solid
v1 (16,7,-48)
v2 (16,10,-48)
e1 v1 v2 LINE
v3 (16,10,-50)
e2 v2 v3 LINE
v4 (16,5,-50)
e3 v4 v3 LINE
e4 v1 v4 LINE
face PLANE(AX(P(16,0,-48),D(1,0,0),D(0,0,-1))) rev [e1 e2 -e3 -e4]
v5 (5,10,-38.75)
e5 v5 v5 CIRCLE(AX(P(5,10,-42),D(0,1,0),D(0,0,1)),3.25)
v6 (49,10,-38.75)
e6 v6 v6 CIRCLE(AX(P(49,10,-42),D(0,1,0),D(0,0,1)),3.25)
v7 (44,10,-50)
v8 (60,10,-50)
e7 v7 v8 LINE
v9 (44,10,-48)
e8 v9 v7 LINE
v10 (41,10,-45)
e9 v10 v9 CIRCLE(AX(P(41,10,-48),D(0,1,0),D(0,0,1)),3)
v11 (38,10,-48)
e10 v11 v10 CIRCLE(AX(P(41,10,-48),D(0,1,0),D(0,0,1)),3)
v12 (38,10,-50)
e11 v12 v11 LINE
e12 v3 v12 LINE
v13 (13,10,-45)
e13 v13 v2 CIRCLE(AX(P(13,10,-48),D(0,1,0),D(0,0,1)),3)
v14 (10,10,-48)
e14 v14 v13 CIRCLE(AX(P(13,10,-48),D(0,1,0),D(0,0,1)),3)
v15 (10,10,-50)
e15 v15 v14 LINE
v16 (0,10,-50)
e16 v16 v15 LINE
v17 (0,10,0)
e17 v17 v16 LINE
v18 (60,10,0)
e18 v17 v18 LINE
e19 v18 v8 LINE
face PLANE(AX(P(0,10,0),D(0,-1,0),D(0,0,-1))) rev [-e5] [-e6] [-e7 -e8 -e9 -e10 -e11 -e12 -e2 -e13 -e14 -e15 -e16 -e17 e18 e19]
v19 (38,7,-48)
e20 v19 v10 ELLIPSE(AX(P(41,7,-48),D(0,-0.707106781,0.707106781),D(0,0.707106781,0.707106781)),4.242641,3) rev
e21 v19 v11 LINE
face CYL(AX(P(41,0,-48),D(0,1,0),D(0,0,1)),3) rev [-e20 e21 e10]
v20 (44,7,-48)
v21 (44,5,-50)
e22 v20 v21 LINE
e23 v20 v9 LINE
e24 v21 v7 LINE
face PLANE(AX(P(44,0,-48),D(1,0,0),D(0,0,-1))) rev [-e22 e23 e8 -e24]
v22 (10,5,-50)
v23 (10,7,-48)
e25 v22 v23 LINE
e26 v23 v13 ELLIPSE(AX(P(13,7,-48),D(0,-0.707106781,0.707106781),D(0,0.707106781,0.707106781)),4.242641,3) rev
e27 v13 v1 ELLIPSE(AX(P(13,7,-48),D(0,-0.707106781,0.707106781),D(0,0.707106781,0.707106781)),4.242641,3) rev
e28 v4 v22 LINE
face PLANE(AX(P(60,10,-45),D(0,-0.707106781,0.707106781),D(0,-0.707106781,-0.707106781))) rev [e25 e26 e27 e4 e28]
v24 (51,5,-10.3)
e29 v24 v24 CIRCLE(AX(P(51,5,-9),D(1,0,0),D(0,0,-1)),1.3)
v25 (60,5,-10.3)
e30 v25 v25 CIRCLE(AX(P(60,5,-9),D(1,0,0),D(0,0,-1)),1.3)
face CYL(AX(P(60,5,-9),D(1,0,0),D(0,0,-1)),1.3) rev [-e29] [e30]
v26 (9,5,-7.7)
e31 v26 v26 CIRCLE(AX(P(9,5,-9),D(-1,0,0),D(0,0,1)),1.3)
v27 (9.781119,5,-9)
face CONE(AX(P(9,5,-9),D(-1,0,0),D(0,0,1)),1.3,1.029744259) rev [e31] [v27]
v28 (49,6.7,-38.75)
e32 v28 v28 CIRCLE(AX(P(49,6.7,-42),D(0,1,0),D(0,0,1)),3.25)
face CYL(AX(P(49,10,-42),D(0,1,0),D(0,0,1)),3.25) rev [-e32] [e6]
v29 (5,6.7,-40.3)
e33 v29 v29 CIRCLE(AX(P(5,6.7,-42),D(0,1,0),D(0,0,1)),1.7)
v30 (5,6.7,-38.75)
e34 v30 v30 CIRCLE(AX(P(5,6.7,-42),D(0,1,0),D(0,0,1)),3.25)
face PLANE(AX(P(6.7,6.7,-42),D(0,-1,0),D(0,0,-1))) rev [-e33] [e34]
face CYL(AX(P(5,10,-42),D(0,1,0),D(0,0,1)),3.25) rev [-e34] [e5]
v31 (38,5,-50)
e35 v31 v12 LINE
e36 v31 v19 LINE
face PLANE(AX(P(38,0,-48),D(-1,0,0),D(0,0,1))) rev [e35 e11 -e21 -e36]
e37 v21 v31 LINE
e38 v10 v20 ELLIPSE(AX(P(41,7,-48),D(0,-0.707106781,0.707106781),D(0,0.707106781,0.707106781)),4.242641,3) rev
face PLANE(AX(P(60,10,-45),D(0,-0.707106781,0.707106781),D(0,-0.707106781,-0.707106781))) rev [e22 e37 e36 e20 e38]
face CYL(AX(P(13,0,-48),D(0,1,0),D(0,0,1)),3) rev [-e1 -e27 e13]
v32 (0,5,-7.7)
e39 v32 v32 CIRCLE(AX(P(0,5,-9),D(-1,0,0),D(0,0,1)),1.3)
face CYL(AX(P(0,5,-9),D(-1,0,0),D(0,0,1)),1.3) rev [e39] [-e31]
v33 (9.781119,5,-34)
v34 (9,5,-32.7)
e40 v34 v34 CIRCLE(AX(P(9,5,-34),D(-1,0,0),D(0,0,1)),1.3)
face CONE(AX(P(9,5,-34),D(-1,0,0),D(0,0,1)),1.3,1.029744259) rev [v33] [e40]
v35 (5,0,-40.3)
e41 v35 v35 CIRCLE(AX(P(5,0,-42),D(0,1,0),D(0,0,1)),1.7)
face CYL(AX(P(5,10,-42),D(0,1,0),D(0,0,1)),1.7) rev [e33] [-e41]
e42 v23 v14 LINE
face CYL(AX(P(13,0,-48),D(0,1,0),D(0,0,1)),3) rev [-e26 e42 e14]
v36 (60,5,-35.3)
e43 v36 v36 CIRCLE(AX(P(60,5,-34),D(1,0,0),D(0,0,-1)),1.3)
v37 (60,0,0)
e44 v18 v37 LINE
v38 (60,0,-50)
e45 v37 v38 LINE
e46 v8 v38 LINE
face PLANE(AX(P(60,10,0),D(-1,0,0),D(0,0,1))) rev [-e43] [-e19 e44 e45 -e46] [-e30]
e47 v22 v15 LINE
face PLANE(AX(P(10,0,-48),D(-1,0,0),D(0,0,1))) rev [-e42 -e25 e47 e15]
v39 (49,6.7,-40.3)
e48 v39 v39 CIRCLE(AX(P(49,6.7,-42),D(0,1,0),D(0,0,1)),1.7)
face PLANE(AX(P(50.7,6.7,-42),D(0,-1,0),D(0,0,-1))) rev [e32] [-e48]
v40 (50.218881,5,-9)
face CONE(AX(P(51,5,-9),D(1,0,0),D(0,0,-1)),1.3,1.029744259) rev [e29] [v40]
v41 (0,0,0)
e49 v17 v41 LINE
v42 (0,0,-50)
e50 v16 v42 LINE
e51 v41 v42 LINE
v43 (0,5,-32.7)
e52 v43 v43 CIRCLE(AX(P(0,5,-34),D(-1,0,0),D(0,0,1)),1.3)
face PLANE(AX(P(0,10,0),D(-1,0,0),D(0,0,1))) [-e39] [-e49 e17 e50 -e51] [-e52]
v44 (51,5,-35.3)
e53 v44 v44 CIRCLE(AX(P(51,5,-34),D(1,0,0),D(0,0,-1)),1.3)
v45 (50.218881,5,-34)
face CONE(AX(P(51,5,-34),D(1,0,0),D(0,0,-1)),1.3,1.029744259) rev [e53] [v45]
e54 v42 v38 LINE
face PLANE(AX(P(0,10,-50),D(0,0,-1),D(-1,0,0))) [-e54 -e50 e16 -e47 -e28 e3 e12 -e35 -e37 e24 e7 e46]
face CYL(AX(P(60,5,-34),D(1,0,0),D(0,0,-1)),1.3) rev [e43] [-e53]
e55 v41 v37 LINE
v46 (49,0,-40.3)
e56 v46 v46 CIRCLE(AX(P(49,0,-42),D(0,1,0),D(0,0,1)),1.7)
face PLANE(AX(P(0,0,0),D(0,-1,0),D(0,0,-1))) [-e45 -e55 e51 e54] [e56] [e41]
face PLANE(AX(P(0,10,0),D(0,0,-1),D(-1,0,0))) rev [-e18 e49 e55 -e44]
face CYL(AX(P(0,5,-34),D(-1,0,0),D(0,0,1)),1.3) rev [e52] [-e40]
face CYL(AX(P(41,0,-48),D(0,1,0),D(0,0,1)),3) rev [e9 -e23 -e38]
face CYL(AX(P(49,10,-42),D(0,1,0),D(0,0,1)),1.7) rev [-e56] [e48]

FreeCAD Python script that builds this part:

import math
import FreeCAD as App
import Part
import Sketcher

V = App.Vector
Q = App.Units.Quantity

doc = App.newDocument("Part")
body = doc.addObject("PartDesign::Body", "Body")

# Sketch on XZ plane
sketch1 = body.newObject("Sketcher::SketchObject", "Sketch")
sketch1.AttachmentSupport = (doc.getObject("XZ_Plane"), [""])
sketch1.MapMode = "FlatFace"
sketch1.addGeometry([
    Part.LineSegment(V(0, -50, 0), V(0, 0, 0)),
    Part.LineSegment(V(0, 0, 0), V(60, 0, 0)),
    Part.LineSegment(V(60, 0, 0), V(60, -50, 0)),
    Part.LineSegment(V(60, -50, 0), V(0, -50, 0)),
], False)
sketch1.addConstraint([
    Sketcher.Constraint("Coincident", 0, 2, 1, 1),
    Sketcher.Constraint("Coincident", 1, 2, 2, 1),
    Sketcher.Constraint("Coincident", 2, 2, 3, 1),
    Sketcher.Constraint("Coincident", 3, 2, 0, 1),
    Sketcher.Constraint("Vertical", 0),
    Sketcher.Constraint("Horizontal", 1),
    Sketcher.Constraint("Vertical", 2),
    Sketcher.Constraint("Horizontal", 3),
    Sketcher.Constraint("Coincident", 0, 2, -1, 1),
    Sketcher.Constraint("DistanceX", 1, 1, 1, 2, Q("60 mm")),
    Sketcher.Constraint("DistanceY", 0, 1, 0, 2, Q("50 mm")),
])
pad1 = body.newObject("PartDesign::Pad", "Pad")
pad1.Profile = sketch1
pad1.Length = 10
pad1.Reversed = True

# Sketch on XZ plane
sketch2 = body.newObject("Sketcher::SketchObject", "Sketch001")
sketch2.AttachmentSupport = (doc.getObject("XZ_Plane"), [""])
sketch2.MapMode = "FlatFace"
sketch2.AttachmentOffset = App.Placement(V(0, 0, -10), App.Rotation())
sketch2.addGeometry([
    Part.LineSegment(V(38, -50, 0), V(38, -48, 0)),  # 0
    Part.ArcOfCircle(Part.Circle(V(41, -48, 0), V(0, 0, 1), 3), math.radians(0), math.radians(180)),  # 1
    Part.LineSegment(V(44, -48, 0), V(44, -50, 0)),  # 2
    Part.LineSegment(V(44, -50, 0), V(38, -50, 0)),  # 3
    Part.LineSegment(V(10, -50, 0), V(10, -48, 0)),  # 4
    Part.ArcOfCircle(Part.Circle(V(13, -48, 0), V(0, 0, 1), 3), math.radians(0), math.radians(180)),  # 5
    Part.LineSegment(V(16, -48, 0), V(16, -50, 0)),  # 6
    Part.LineSegment(V(16, -50, 0), V(10, -50, 0)),  # 7
], False)
sketch2.addConstraint([
    Sketcher.Constraint("Tangent", 0, 2, 1, 2),
    Sketcher.Constraint("Tangent", 1, 1, 2, 1),
    Sketcher.Constraint("Coincident", 2, 2, 3, 1),
    Sketcher.Constraint("Coincident", 3, 2, 0, 1),
    Sketcher.Constraint("Tangent", 4, 2, 5, 2),
    Sketcher.Constraint("Tangent", 5, 1, 6, 1),
    Sketcher.Constraint("Coincident", 6, 2, 7, 1),
    Sketcher.Constraint("Coincident", 7, 2, 4, 1),
    Sketcher.Constraint("Vertical", 0),
    Sketcher.Constraint("Vertical", 2),
    Sketcher.Constraint("Horizontal", 3),
    Sketcher.Constraint("Vertical", 4),
    Sketcher.Constraint("Vertical", 6),
    Sketcher.Constraint("Horizontal", 7),
    Sketcher.Constraint("Equal", 1, 5),
    Sketcher.Constraint("Horizontal", 1, 3, 5, 3),
    Sketcher.Constraint("Horizontal", 3, 2, 6, 2),
    Sketcher.Constraint("Radius", 1, Q("3 mm")),
    Sketcher.Constraint("DistanceY", 0, 1, 0, 2, Q("2 mm")),
    Sketcher.Constraint("DistanceX", -1, 1, 1, 3, Q("41 mm")),
    Sketcher.Constraint("DistanceY", 1, 3, -1, 1, Q("48 mm")),
    Sketcher.Constraint("DistanceX", -1, 1, 5, 3, Q("13 mm")),
])
pocket1 = body.newObject("PartDesign::Pocket", "Pocket")
pocket1.Profile = sketch2
pocket1.Length = 10
pocket1.Reversed = True

# Sketch on YZ plane
sketch3 = body.newObject("Sketcher::SketchObject", "Sketch002")
sketch3.AttachmentSupport = (doc.getObject("YZ_Plane"), [""])
sketch3.MapMode = "FlatFace"
sketch3.addGeometry([
    Part.LineSegment(V(0, -45, 0), V(0, -50, 0)),
    Part.LineSegment(V(0, -50, 0), V(5, -50, 0)),
    Part.LineSegment(V(5, -50, 0), V(10, -45, 0)),
    Part.LineSegment(V(10, -45, 0), V(0, -45, 0)),
], False)
sketch3.addConstraint([
    Sketcher.Constraint("Coincident", 0, 2, 1, 1),
    Sketcher.Constraint("Coincident", 1, 2, 2, 1),
    Sketcher.Constraint("Coincident", 2, 2, 3, 1),
    Sketcher.Constraint("Coincident", 3, 2, 0, 1),
    Sketcher.Constraint("Vertical", 0),
    Sketcher.Constraint("Horizontal", 1),
    Sketcher.Constraint("Horizontal", 3),
    Sketcher.Constraint("PointOnObject", 0, 2, -2),
    Sketcher.Constraint("Equal", 1, 0),
    Sketcher.Constraint("DistanceX", 1, 1, 1, 2, Q("5 mm")),
    Sketcher.Constraint("DistanceX", 3, 2, 3, 1, Q("10 mm")),
    Sketcher.Constraint("DistanceY", 0, 2, -1, 1, Q("50 mm")),
])
pad2 = body.newObject("PartDesign::Pad", "Pad001")
pad2.Profile = sketch3
pad2.Type = "UpToFirst"
pad3 = body.newObject("PartDesign::Pad", "Pad002")
pad3.Profile = sketch3
pad3.Type = "UpToFirst"

# Sketch on XZ plane
sketch4 = body.newObject("Sketcher::SketchObject", "Sketch003")
sketch4.AttachmentSupport = (doc.getObject("XZ_Plane"), [""])
sketch4.MapMode = "FlatFace"
sketch4.AttachmentOffset = App.Placement(V(0, 0, -10), App.Rotation())
sketch4.addGeometry([
    Part.Circle(V(5, -42, 0), V(0, 0, 1), 1.7),
    Part.Circle(V(49, -42, 0), V(0, 0, 1), 1.7),
], False)
sketch4.addConstraint([
    Sketcher.Constraint("Equal", 0, 1),
    Sketcher.Constraint("Horizontal", 0, 3, 1, 3),
    Sketcher.Constraint("Diameter", 0, Q("3.4 mm")),
    Sketcher.Constraint("DistanceX", -1, 1, 0, 3, Q("5 mm")),
    Sketcher.Constraint("DistanceY", 0, 3, -1, 1, Q("42 mm")),
    Sketcher.Constraint("DistanceX", -1, 1, 1, 3, Q("49 mm")),
])
doc.recompute()
hole = body.newObject("PartDesign::Hole", "Hole")
hole.Profile = sketch4
hole.ThreadType = "None"
hole.Diameter = 3.4
hole.DepthType = "ThroughAll"
hole.HoleCutType = "Counterbore"
hole.HoleCutDiameter = 6.5
hole.HoleCutDepth = 3.3
hole.Reversed = True

# Sketch on YZ plane
sketch5 = body.newObject("Sketcher::SketchObject", "Sketch004")
sketch5.AttachmentSupport = (doc.getObject("YZ_Plane"), [""])
sketch5.MapMode = "FlatFace"
sketch5.AttachmentOffset = App.Placement(V(0, 0, 60), App.Rotation())
sketch5.addGeometry([
    Part.Circle(V(5, -34, 0), V(0, 0, 1), 1.3),
    Part.Circle(V(5, -9, 0), V(0, 0, 1), 1.3),
], False)
sketch5.addConstraint([
    Sketcher.Constraint("Equal", 0, 1),
    Sketcher.Constraint("Vertical", 0, 3, 1, 3),
    Sketcher.Constraint("Diameter", 0, Q("2.6 mm")),
    Sketcher.Constraint("DistanceX", -1, 1, 0, 3, Q("5 mm")),
    Sketcher.Constraint("DistanceY", 0, 3, -1, 1, Q("34 mm")),
    Sketcher.Constraint("DistanceY", 1, 3, -1, 1, Q("9 mm")),
])
doc.recompute()
hole2 = body.newObject("PartDesign::Hole", "Hole001")
hole2.Profile = sketch5
hole2.ThreadType = "None"
hole2.Diameter = 2.6
hole2.DepthType = "Dimension"
hole2.Depth = 9
hole2.DrillPoint = "Angled"
hole2.DrillPointAngle = 118

# Sketch on YZ plane
sketch6 = body.newObject("Sketcher::SketchObject", "Sketch005")
sketch6.AttachmentSupport = (doc.getObject("YZ_Plane"), [""])
sketch6.MapMode = "FlatFace"
sketch6.addGeometry([
    Part.Circle(V(5, -34, 0), V(0, 0, 1), 1.3),
    Part.Circle(V(5, -9, 0), V(0, 0, 1), 1.3),
], False)
sketch6.addConstraint([
    Sketcher.Constraint("Equal", 0, 1),
    Sketcher.Constraint("Vertical", 0, 3, 1, 3),
    Sketcher.Constraint("Diameter", 0, Q("2.6 mm")),
    Sketcher.Constraint("DistanceX", -1, 1, 0, 3, Q("5 mm")),
    Sketcher.Constraint("DistanceY", 0, 3, -1, 1, Q("34 mm")),
    Sketcher.Constraint("DistanceY", 1, 3, -1, 1, Q("9 mm")),
])
doc.recompute()
hole3 = body.newObject("PartDesign::Hole", "Hole002")
hole3.Profile = sketch6
hole3.ThreadType = "None"
hole3.Diameter = 2.6
hole3.DepthType = "Dimension"
hole3.Depth = 9
hole3.DrillPoint = "Angled"
hole3.DrillPointAngle = 118
hole3.Reversed = True

doc.recompute()
